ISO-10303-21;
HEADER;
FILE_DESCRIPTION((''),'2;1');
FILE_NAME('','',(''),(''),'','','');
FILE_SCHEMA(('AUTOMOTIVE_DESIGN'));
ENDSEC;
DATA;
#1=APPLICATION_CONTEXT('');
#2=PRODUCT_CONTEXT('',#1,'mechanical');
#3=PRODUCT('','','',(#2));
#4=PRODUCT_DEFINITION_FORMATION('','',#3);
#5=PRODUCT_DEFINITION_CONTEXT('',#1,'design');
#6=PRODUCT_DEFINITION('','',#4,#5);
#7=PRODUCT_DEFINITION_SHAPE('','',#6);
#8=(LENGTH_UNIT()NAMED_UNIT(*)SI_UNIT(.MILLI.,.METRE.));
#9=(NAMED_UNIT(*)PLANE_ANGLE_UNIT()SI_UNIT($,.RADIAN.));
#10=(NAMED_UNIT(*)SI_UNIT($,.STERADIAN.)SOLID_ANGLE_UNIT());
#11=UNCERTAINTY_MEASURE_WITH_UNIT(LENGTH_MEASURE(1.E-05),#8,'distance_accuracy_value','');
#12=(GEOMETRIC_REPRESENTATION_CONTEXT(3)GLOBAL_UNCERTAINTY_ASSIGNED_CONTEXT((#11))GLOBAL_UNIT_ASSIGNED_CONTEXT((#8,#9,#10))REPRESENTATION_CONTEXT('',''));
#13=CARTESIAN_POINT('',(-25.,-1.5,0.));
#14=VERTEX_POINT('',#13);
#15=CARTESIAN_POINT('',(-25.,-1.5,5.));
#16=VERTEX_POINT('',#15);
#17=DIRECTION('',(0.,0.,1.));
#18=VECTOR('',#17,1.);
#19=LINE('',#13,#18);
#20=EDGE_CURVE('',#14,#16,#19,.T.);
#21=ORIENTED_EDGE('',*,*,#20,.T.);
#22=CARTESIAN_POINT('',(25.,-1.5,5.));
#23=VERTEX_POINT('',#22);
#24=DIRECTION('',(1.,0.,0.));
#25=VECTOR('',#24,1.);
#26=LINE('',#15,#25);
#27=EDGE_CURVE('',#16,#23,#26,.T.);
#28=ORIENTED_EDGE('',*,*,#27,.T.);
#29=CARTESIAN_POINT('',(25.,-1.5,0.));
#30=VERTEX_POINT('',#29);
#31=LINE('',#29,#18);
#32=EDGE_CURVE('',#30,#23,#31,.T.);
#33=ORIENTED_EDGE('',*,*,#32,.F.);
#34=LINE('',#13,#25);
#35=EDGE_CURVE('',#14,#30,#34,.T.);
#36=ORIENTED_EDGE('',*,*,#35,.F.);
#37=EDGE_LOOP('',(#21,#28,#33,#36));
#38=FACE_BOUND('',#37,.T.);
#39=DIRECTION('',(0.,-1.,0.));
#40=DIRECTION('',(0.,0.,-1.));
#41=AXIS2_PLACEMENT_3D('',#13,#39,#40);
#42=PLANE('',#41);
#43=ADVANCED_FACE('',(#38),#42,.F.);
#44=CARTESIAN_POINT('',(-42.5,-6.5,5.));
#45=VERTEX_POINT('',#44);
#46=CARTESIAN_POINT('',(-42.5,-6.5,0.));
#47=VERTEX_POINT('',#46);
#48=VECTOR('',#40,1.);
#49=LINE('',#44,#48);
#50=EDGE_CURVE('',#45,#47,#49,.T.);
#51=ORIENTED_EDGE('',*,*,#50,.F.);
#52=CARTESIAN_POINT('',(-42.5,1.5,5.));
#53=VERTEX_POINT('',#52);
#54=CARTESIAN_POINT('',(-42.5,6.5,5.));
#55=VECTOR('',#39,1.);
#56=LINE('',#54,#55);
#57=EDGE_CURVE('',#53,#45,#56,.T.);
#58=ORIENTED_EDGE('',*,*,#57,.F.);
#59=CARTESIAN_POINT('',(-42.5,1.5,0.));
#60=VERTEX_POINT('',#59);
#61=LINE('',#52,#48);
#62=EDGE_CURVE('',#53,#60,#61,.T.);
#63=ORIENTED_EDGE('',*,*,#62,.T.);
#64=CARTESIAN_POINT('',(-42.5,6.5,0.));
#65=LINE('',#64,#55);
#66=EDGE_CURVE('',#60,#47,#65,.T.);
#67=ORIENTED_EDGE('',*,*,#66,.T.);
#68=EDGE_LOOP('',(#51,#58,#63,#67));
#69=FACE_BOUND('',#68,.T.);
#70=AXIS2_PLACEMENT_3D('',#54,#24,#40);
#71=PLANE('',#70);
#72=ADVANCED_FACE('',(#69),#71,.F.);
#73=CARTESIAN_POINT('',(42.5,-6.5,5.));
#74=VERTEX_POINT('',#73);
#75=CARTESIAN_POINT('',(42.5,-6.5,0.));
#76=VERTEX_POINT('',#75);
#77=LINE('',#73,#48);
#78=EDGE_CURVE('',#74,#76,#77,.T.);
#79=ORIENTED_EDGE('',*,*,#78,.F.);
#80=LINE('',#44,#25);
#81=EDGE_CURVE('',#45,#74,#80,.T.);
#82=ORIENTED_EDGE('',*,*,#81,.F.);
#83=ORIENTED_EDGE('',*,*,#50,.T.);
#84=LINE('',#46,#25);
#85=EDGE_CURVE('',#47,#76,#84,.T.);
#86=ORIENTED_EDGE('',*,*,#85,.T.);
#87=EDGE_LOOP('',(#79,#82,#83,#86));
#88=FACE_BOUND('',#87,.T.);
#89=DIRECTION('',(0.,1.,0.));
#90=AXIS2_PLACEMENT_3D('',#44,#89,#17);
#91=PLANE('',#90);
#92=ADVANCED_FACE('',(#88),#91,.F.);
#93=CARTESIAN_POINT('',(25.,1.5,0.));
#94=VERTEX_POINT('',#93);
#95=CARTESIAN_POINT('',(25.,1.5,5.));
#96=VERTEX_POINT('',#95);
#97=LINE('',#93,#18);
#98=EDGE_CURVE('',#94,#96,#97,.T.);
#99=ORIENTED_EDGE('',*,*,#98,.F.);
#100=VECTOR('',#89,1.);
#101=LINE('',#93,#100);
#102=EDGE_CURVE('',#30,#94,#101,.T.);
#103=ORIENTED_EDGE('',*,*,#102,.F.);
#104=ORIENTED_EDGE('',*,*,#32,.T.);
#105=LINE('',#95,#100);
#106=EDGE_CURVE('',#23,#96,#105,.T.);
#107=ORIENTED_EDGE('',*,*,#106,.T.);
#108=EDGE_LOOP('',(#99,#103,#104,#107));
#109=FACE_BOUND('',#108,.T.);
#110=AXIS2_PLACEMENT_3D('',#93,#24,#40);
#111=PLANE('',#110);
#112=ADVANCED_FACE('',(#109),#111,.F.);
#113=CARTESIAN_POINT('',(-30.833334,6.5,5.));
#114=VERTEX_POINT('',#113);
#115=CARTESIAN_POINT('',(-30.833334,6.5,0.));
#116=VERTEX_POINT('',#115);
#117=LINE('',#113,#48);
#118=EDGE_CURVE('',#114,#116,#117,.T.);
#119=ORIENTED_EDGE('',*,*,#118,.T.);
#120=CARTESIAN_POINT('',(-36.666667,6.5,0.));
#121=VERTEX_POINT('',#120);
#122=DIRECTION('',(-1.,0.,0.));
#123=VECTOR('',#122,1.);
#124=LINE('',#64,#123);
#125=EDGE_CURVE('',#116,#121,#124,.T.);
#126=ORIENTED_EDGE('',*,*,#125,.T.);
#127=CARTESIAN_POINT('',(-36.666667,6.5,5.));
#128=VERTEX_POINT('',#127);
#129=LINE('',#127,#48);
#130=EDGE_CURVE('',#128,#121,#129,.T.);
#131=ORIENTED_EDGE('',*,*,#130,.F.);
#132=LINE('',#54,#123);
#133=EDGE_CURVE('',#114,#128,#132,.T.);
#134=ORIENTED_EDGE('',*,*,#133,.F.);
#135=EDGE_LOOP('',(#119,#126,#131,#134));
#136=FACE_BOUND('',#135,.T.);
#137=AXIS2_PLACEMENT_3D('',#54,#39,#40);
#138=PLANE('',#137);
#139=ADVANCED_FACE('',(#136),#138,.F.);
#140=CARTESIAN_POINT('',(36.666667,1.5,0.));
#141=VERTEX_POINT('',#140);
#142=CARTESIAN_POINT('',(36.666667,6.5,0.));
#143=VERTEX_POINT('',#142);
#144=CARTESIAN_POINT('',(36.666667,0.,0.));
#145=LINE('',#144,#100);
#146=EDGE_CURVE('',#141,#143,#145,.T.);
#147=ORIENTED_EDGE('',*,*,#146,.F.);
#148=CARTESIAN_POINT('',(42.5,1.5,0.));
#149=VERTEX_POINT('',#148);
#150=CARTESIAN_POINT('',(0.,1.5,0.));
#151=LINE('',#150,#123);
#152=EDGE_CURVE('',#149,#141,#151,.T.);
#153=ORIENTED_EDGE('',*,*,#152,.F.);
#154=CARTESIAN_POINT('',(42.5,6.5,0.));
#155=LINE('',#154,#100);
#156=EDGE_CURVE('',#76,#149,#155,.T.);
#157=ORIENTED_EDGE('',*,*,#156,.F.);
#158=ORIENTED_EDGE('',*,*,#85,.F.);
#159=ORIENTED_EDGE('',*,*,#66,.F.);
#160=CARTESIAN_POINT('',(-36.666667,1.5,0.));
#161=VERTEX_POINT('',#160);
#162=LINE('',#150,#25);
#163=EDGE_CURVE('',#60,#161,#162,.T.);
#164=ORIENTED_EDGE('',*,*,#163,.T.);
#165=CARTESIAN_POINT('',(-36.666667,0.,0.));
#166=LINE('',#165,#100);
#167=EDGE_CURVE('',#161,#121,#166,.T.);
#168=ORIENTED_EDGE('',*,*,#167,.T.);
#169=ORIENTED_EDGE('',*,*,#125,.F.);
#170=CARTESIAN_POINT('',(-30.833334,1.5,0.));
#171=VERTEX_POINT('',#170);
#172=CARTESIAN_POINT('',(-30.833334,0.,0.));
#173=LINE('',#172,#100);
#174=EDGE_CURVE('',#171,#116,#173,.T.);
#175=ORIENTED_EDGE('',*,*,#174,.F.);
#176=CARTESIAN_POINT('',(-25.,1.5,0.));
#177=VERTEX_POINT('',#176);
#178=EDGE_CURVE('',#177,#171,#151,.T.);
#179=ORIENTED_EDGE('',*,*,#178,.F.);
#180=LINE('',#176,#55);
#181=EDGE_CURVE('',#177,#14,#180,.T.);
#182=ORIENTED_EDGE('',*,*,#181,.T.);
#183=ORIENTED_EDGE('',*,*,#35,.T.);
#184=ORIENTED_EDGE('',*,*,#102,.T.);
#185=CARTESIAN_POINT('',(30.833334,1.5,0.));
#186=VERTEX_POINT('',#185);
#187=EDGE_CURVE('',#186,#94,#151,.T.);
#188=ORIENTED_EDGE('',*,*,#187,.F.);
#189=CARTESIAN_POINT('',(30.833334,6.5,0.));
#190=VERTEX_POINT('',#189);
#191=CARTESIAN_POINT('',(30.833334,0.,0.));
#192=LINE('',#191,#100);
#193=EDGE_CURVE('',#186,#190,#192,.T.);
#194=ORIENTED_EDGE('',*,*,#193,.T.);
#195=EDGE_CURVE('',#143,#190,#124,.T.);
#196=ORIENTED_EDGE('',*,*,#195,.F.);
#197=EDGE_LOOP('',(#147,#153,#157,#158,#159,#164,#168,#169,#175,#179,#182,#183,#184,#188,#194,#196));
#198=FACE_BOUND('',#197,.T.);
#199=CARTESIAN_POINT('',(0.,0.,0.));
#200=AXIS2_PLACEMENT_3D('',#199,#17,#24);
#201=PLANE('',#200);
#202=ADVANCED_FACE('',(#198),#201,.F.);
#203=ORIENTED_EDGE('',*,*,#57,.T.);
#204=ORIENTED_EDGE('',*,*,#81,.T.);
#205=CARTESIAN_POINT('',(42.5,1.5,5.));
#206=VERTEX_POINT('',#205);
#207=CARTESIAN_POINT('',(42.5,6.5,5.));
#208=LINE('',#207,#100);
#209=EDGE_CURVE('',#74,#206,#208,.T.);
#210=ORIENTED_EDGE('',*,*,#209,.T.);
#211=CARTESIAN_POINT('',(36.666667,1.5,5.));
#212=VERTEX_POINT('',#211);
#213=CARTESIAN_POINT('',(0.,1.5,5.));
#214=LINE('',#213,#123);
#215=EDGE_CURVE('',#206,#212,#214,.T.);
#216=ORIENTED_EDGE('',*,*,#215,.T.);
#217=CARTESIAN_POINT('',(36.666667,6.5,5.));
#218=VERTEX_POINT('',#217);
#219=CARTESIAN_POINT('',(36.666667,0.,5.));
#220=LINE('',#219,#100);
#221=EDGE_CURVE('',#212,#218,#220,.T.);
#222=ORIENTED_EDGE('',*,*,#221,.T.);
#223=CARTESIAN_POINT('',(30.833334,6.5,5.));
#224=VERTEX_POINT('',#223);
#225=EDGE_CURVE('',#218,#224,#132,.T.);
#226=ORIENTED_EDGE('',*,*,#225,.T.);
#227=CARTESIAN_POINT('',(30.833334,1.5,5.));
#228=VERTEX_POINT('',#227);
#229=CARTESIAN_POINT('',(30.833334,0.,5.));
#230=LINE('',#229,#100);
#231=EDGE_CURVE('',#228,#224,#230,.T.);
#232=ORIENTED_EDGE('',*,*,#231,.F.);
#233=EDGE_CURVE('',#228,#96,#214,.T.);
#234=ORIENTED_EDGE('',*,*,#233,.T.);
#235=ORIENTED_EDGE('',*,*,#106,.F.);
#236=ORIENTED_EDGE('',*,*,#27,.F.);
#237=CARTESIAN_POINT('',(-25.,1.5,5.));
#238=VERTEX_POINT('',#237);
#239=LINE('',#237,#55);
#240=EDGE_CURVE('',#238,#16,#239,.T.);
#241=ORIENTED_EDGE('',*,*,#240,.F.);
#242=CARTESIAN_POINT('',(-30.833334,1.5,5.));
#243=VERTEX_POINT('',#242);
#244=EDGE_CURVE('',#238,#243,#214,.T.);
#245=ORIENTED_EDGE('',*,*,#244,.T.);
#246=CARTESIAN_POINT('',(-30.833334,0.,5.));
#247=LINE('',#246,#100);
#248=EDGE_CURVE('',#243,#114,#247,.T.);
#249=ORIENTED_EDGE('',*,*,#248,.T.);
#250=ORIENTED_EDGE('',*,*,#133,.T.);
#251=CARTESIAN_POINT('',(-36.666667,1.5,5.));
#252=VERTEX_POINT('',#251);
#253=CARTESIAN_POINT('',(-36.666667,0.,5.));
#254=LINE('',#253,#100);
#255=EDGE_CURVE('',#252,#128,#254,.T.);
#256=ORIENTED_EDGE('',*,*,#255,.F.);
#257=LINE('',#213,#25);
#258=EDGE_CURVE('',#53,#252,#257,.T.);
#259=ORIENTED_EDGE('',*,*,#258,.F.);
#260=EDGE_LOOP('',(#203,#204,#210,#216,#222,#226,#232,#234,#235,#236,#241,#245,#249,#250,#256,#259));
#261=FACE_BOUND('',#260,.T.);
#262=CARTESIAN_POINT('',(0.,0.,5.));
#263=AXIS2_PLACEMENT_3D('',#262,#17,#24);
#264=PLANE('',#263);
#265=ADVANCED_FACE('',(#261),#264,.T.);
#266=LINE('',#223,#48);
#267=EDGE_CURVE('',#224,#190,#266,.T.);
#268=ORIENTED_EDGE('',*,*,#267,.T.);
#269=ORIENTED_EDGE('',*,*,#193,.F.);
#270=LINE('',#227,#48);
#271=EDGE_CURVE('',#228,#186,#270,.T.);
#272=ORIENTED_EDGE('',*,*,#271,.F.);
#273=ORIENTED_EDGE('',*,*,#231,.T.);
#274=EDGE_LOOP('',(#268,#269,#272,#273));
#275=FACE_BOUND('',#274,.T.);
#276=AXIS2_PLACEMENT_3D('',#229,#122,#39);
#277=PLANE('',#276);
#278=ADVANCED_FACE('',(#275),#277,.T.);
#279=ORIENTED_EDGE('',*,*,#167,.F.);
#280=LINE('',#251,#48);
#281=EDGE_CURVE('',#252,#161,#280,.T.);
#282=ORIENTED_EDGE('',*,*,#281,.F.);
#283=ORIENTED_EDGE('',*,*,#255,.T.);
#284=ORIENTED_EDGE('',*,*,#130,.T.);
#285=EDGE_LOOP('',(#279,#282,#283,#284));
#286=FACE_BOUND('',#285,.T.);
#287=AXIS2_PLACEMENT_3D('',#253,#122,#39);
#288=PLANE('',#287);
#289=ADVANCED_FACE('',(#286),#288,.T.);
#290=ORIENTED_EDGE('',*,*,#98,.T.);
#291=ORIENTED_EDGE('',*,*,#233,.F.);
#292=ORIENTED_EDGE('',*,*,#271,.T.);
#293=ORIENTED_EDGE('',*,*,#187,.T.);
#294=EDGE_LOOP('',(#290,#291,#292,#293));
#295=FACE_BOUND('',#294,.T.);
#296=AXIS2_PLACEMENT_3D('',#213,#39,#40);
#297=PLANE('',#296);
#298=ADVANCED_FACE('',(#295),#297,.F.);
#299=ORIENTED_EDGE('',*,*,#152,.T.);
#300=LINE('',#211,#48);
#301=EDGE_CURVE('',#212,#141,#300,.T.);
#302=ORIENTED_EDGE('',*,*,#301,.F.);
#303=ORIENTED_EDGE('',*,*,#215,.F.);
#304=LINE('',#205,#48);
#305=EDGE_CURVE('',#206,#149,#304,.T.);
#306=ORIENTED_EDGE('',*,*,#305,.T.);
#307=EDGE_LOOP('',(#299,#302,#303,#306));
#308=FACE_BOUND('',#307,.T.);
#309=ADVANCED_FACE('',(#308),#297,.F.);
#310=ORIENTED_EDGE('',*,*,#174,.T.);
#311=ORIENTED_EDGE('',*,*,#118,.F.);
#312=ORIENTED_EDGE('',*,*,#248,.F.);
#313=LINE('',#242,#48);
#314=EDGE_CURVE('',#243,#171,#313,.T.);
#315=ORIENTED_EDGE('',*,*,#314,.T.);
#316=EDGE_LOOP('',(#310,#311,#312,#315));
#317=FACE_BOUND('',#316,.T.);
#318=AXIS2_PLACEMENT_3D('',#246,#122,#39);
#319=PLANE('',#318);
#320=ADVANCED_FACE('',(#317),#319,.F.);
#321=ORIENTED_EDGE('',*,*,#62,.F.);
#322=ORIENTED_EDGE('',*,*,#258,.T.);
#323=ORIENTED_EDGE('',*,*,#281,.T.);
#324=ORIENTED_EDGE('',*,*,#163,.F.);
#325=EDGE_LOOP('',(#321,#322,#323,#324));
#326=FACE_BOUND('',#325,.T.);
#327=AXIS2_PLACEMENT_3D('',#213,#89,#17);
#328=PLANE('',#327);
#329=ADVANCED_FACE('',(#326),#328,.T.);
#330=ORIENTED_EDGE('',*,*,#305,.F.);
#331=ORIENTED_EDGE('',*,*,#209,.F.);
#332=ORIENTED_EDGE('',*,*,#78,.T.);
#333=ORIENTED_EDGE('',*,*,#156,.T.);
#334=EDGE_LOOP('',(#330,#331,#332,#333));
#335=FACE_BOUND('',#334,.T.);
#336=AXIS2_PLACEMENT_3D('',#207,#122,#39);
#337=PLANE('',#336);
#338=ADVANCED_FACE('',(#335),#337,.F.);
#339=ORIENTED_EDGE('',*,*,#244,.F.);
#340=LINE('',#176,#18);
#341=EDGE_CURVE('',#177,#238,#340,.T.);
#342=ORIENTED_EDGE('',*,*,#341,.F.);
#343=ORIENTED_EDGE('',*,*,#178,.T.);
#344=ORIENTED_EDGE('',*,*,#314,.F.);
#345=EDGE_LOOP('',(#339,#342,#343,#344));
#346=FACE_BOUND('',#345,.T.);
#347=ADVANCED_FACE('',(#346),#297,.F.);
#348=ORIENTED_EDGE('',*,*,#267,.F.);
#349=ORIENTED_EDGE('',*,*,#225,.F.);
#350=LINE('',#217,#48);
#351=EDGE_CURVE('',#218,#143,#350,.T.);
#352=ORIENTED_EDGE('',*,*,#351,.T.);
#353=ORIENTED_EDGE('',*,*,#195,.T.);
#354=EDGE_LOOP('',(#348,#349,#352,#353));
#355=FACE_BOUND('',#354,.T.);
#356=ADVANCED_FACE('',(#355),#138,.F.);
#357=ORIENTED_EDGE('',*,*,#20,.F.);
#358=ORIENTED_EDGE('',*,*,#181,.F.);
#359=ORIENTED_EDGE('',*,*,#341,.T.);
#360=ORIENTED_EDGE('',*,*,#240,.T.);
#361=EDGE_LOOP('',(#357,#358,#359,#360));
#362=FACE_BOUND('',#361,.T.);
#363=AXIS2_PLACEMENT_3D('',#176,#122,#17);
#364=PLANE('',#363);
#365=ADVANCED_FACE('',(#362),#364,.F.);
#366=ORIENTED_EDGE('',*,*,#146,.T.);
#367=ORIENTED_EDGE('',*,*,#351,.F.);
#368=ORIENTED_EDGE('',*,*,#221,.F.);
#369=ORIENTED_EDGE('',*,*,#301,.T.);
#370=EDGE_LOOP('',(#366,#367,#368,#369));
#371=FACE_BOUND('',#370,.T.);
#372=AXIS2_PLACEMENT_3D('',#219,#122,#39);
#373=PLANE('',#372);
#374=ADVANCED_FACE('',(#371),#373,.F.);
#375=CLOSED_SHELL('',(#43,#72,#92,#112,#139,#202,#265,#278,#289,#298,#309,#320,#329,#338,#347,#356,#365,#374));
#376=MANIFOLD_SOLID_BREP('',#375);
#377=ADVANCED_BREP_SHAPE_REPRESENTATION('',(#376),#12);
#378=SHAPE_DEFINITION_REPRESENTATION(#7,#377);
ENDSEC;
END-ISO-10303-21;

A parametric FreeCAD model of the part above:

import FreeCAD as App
import Part
import Sketcher
from FreeCAD import Vector


def add_polygon(sketch, points):
    """Adds a closed chain of lines whose ends are joined by coincident constraints."""
    first, n = sketch.GeometryCount, len(points)
    for a, b in zip(points, points[1:] + points[:1]):
        sketch.addGeometry(Part.LineSegment(App.Vector(*a, 0), App.Vector(*b, 0)), False)
    for i in range(n):
        sketch.addConstraint(Sketcher.Constraint("Coincident", first + i, 2, first + (i + 1) % n, 1))

doc = App.newDocument("Part")
params = doc.addObject("Spreadsheet::Sheet", "Params")
for row, (alias, value) in enumerate([
    ("sketch1_width", "85 mm"),
    ("sketch1_height", "13 mm"),
    ("pad1_length", "5 mm"),
    ("sketch2_width", "50 mm"),
    ("sketch2_height", "3 mm"),
    ("sketch3_height", "5 mm"),
], start=1):
    params.set(f"A{row}", alias)
    params.set(f"B{row}", "=" + value)
    params.setAlias(f"B{row}", alias)

body = doc.addObject("PartDesign::Body", "Body")

# Sketch on XY plane
sketch1 = body.newObject("Sketcher::SketchObject", "Sketch")
sketch1.AttachmentSupport = (doc.getObject("XY_Plane"), [""])
sketch1.MapMode = "FlatFace"
add_polygon(sketch1, [(-42, 6), (-42, -6), (42, -6), (42, 6)])  # lines 0-3
sketch1.addConstraint(Sketcher.Constraint("Vertical", 0))
sketch1.addConstraint(Sketcher.Constraint("Horizontal", 1))
sketch1.addConstraint(Sketcher.Constraint("Vertical", 2))
sketch1.addConstraint(Sketcher.Constraint("Horizontal", 3))
sketch1.addConstraint(Sketcher.Constraint("Symmetric", 0, 2, 2, 2, -1, 1))
sketch1.addConstraint(Sketcher.Constraint("DistanceX", 1, 1, 1, 2, 85.0))
sketch1.addConstraint(Sketcher.Constraint("DistanceY", 0, 2, 0, 1, 13.0))
sketch1.setExpression("Constraints[9]", "Params.sketch1_width")
sketch1.setExpression("Constraints[10]", "Params.sketch1_height")
pad1 = body.newObject("PartDesign::Pad", "Pad")
pad1.Profile = sketch1
pad1.setExpression("Length", "Params.pad1_length")

# Sketch on XY plane
sketch2 = body.newObject("Sketcher::SketchObject", "Sketch001")
sketch2.AttachmentSupport = (doc.getObject("XY_Plane"), [""])
sketch2.MapMode = "FlatFace"
sketch2.AttachmentOffset = App.Placement(Vector(0, 0, 5), App.Rotation())
add_polygon(sketch2, [(-25, 1.5), (-25, -1.5), (25, -1.5), (25, 1.5)])  # lines 0-3
sketch2.addConstraint(Sketcher.Constraint("Vertical", 0))
sketch2.addConstraint(Sketcher.Constraint("Horizontal", 1))
sketch2.addConstraint(Sketcher.Constraint("Vertical", 2))
sketch2.addConstraint(Sketcher.Constraint("Horizontal", 3))
sketch2.addConstraint(Sketcher.Constraint("Symmetric", 0, 2, 2, 2, -1, 1))
sketch2.addConstraint(Sketcher.Constraint("DistanceX", 1, 1, 1, 2, 50.0))
sketch2.addConstraint(Sketcher.Constraint("DistanceY", 0, 2, 0, 1, 3.0))
sketch2.setExpression("Constraints[9]", "Params.sketch2_width")
sketch2.setExpression("Constraints[10]", "Params.sketch2_height")
pocket1 = body.newObject("PartDesign::Pocket", "Pocket")
pocket1.Profile = sketch2
pocket1.Type = "ThroughAll"

# Sketch on XY plane
sketch3 = body.newObject("Sketcher::SketchObject", "Sketch002")
sketch3.AttachmentSupport = (doc.getObject("XY_Plane"), [""])
sketch3.MapMode = "FlatFace"
add_polygon(sketch3, [(42, 6), (42, 2), (37, 2), (37, 6)])  # lines 0-3
add_polygon(sketch3, [(31, 6), (31, 2), (-31, 2), (-31, 6)])  # lines 4-7
add_polygon(sketch3, [(-37, 6), (-37, 2), (-42, 2), (-42, 6)])  # lines 8-11
sketch3.addConstraint(Sketcher.Constraint("Vertical", 0))
sketch3.addConstraint(Sketcher.Constraint("Horizontal", 1))
sketch3.addConstraint(Sketcher.Constraint("Vertical", 2))
sketch3.addConstraint(Sketcher.Constraint("Horizontal", 3))
sketch3.addConstraint(Sketcher.Constraint("Vertical", 4))
sketch3.addConstraint(Sketcher.Constraint("Horizontal", 5))
sketch3.addConstraint(Sketcher.Constraint("Vertical", 6))
sketch3.addConstraint(Sketcher.Constraint("Horizontal", 7))
sketch3.addConstraint(Sketcher.Constraint("Vertical", 8))
sketch3.addConstraint(Sketcher.Constraint("Horizontal", 9))
sketch3.addConstraint(Sketcher.Constraint("Vertical", 10))
sketch3.addConstraint(Sketcher.Constraint("Horizontal", 11))
sketch3.addConstraint(Sketcher.Constraint("Symmetric", 1, 2, 8, 2, -2))
sketch3.addConstraint(Sketcher.Constraint("Symmetric", 3, 2, 10, 2, -2))
sketch3.addConstraint(Sketcher.Constraint("Horizontal", 1, 2, 4, 2))
sketch3.addConstraint(Sketcher.Constraint("Horizontal", 3, 2, 6, 2))
sketch3.addConstraint(Sketcher.Constraint("DistanceY", 0, 2, 0, 1, 5.0))
sketch3.addConstraint(Sketcher.Constraint("DistanceX", -1, 1, 0, 2, 42.5))
sketch3.addConstraint(Sketcher.Constraint("DistanceY", -1, 1, 0, 2, 1.5))
sketch3.addConstraint(Sketcher.Constraint("DistanceX", 5, 2, 1, 2, 67.500001))
sketch3.addConstraint(Sketcher.Constraint("DistanceX", 8, 2, 4, 2, 67.500001))
sketch3.addConstraint(Sketcher.Constraint("DistanceX", 1, 2, 1, 1, 5.833333))
sketch3.setExpression("Constraints[28]", "Params.sketch3_height")
pocket2 = body.newObject("PartDesign::Pocket", "Pocket001")
pocket2.Profile = sketch3
pocket2.Type = "ThroughAll"
pocket2.Reversed = True

doc.recompute()
